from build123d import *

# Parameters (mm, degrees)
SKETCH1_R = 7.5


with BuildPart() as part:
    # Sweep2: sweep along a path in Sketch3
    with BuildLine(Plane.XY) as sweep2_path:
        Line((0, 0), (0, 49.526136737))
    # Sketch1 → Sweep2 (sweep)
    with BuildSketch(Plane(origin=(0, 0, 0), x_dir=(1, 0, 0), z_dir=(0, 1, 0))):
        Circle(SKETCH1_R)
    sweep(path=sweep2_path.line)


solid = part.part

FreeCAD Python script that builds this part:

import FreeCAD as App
import Part
import Sketcher

V = App.Vector
Q = App.Units.Quantity

doc = App.newDocument("Part")
body = doc.addObject("PartDesign::Body", "Body")

sketch1 = doc.addObject("Sketcher::SketchObject", "Sketch")
body.addObject(sketch1)
sketch1.AttachmentSupport = (doc.XZ_Plane, [""])
sketch1.MapMode = "FlatFace"
sketch1.addGeometry(Part.Circle(V(0, 0, 0), V(0, 0, 1), 7.5), False)
sketch1.addConstraint([
    Sketcher.Constraint("Coincident", 0, 3, -1, 1),
    Sketcher.Constraint("Diameter", 0, Q("15 mm")),
])

sketch2 = doc.addObject("Sketcher::SketchObject", "Sketch001")
body.addObject(sketch2)
sketch2.AttachmentSupport = (doc.XY_Plane, [""])
sketch2.MapMode = "FlatFace"
sketch2.addGeometry(Part.LineSegment(V(0, 0, 0), V(0, 49.526137, 0)), False)
sketch2.addConstraint([
    Sketcher.Constraint("Vertical", 0),
    Sketcher.Constraint("Coincident", 0, 1, -1, 1),
    Sketcher.Constraint("DistanceY", 0, 1, 0, 2, Q("49.526137 mm")),
])
doc.recompute()

additivepipe = doc.addObject("PartDesign::AdditivePipe", "AdditivePipe")
body.addObject(additivepipe)
additivepipe.Profile = sketch1
additivepipe.Spine = (sketch2, ["Edge1"])

doc.recompute()
